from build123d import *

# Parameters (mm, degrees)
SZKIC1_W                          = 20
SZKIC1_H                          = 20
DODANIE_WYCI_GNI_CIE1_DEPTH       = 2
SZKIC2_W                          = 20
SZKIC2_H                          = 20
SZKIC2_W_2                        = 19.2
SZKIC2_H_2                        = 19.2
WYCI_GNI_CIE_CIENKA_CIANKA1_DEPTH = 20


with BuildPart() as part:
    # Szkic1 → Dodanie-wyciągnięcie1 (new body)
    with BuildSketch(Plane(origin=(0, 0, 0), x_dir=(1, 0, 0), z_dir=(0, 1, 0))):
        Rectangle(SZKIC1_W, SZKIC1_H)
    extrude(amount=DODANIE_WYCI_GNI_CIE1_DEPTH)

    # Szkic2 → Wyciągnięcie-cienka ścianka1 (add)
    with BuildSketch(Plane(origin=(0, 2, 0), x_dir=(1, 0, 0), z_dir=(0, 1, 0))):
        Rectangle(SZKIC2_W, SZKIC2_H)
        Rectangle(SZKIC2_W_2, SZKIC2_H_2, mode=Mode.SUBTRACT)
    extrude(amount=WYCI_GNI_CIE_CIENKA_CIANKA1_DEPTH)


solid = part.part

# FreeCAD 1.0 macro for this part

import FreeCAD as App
import Part
import Sketcher

V = App.Vector
Q = App.Units.Quantity

doc = App.newDocument("Part")
body = doc.addObject("PartDesign::Body", "Body")

sketch1 = body.newObject("Sketcher::SketchObject", "Sketch")
sketch1.AttachmentSupport = (doc.getObject("XZ_Plane"), [""])
sketch1.MapMode = "FlatFace"
sketch1.addGeometry(Part.LineSegment(V(-10, -10, 0), V(-10, 10, 0)), False)
sketch1.addGeometry(Part.LineSegment(V(-10, 10, 0), V(10, 10, 0)), False)
sketch1.addGeometry(Part.LineSegment(V(10, 10, 0), V(10, -10, 0)), False)
sketch1.addGeometry(Part.LineSegment(V(10, -10, 0), V(-10, -10, 0)), False)
sketch1.addConstraint(Sketcher.Constraint("Coincident", 0, 2, 1, 1))
sketch1.addConstraint(Sketcher.Constraint("Coincident", 1, 2, 2, 1))
sketch1.addConstraint(Sketcher.Constraint("Coincident", 2, 2, 3, 1))
sketch1.addConstraint(Sketcher.Constraint("Coincident", 3, 2, 0, 1))
sketch1.addConstraint(Sketcher.Constraint("Vertical", 0))
sketch1.addConstraint(Sketcher.Constraint("Horizontal", 1))
sketch1.addConstraint(Sketcher.Constraint("Vertical", 2))
sketch1.addConstraint(Sketcher.Constraint("Horizontal", 3))
sketch1.addConstraint(Sketcher.Constraint("Symmetric", 0, 2, 2, 2, -1, 1))
sketch1.addConstraint(Sketcher.Constraint("Equal", 3, 0))
sketch1.addConstraint(Sketcher.Constraint("DistanceX", 1, 1, 1, 2, Q("20 mm")))
pad1 = body.newObject("PartDesign::Pad", "Pad")
pad1.Profile = sketch1
pad1.Length = 2
pad1.Reversed = True

sketch2 = body.newObject("Sketcher::SketchObject", "Sketch001")
sketch2.AttachmentSupport = (doc.getObject("XZ_Plane"), [""])
sketch2.MapMode = "FlatFace"
sketch2.AttachmentOffset = App.Placement(V(0, 0, -2), App.Rotation())
sketch2.addGeometry(Part.LineSegment(V(-10, -10, 0), V(-10, 10, 0)), False)
sketch2.addGeometry(Part.LineSegment(V(-10, 10, 0), V(10, 10, 0)), False)
sketch2.addGeometry(Part.LineSegment(V(10, 10, 0), V(10, -10, 0)), False)
sketch2.addGeometry(Part.LineSegment(V(10, -10, 0), V(-10, -10, 0)), False)
sketch2.addGeometry(Part.LineSegment(V(10, 10, 0), V(-10, 10, 0)), False)
sketch2.addGeometry(Part.LineSegment(V(-10, 10, 0), V(-10, -10, 0)), False)
sketch2.addGeometry(Part.LineSegment(V(-10, -10, 0), V(10, -10, 0)), False)
sketch2.addGeometry(Part.LineSegment(V(10, -10, 0), V(10, 10, 0)), False)
sketch2.addConstraint(Sketcher.Constraint("Coincident", 0, 2, 1, 1))
sketch2.addConstraint(Sketcher.Constraint("Coincident", 1, 2, 2, 1))
sketch2.addConstraint(Sketcher.Constraint("Coincident", 2, 2, 3, 1))
sketch2.addConstraint(Sketcher.Constraint("Coincident", 3, 2, 0, 1))
sketch2.addConstraint(Sketcher.Constraint("Coincident", 4, 2, 5, 1))
sketch2.addConstraint(Sketcher.Constraint("Coincident", 5, 2, 6, 1))
sketch2.addConstraint(Sketcher.Constraint("Coincident", 6, 2, 7, 1))
sketch2.addConstraint(Sketcher.Constraint("Coincident", 7, 2, 4, 1))
sketch2.addConstraint(Sketcher.Constraint("Vertical", 0))
sketch2.addConstraint(Sketcher.Constraint("Horizontal", 1))
sketch2.addConstraint(Sketcher.Constraint("Vertical", 2))
sketch2.addConstraint(Sketcher.Constraint("Horizontal", 3))
sketch2.addConstraint(Sketcher.Constraint("Horizontal", 4))
sketch2.addConstraint(Sketcher.Constraint("Vertical", 5))
sketch2.addConstraint(Sketcher.Constraint("Horizontal", 6))
sketch2.addConstraint(Sketcher.Constraint("Vertical", 7))
sketch2.addConstraint(Sketcher.Constraint("Symmetric", 0, 2, 2, 2, -1, 1))
sketch2.addConstraint(Sketcher.Constraint("Symmetric", 4, 2, 6, 2, -1, 1))
sketch2.addConstraint(Sketcher.Constraint("Equal", 3, 0))
sketch2.addConstraint(Sketcher.Constraint("Equal", 6, 5))
sketch2.addConstraint(Sketcher.Constraint("DistanceX", 1, 1, 1, 2, Q("20 mm")))
sketch2.addConstraint(Sketcher.Constraint("DistanceX", 4, 2, 4, 1, Q("19.2 mm")))
pad2 = body.newObject("PartDesign::Pad", "Pad001")
pad2.Profile = sketch2
pad2.Length = 20
pad2.Reversed = True

doc.recompute()
